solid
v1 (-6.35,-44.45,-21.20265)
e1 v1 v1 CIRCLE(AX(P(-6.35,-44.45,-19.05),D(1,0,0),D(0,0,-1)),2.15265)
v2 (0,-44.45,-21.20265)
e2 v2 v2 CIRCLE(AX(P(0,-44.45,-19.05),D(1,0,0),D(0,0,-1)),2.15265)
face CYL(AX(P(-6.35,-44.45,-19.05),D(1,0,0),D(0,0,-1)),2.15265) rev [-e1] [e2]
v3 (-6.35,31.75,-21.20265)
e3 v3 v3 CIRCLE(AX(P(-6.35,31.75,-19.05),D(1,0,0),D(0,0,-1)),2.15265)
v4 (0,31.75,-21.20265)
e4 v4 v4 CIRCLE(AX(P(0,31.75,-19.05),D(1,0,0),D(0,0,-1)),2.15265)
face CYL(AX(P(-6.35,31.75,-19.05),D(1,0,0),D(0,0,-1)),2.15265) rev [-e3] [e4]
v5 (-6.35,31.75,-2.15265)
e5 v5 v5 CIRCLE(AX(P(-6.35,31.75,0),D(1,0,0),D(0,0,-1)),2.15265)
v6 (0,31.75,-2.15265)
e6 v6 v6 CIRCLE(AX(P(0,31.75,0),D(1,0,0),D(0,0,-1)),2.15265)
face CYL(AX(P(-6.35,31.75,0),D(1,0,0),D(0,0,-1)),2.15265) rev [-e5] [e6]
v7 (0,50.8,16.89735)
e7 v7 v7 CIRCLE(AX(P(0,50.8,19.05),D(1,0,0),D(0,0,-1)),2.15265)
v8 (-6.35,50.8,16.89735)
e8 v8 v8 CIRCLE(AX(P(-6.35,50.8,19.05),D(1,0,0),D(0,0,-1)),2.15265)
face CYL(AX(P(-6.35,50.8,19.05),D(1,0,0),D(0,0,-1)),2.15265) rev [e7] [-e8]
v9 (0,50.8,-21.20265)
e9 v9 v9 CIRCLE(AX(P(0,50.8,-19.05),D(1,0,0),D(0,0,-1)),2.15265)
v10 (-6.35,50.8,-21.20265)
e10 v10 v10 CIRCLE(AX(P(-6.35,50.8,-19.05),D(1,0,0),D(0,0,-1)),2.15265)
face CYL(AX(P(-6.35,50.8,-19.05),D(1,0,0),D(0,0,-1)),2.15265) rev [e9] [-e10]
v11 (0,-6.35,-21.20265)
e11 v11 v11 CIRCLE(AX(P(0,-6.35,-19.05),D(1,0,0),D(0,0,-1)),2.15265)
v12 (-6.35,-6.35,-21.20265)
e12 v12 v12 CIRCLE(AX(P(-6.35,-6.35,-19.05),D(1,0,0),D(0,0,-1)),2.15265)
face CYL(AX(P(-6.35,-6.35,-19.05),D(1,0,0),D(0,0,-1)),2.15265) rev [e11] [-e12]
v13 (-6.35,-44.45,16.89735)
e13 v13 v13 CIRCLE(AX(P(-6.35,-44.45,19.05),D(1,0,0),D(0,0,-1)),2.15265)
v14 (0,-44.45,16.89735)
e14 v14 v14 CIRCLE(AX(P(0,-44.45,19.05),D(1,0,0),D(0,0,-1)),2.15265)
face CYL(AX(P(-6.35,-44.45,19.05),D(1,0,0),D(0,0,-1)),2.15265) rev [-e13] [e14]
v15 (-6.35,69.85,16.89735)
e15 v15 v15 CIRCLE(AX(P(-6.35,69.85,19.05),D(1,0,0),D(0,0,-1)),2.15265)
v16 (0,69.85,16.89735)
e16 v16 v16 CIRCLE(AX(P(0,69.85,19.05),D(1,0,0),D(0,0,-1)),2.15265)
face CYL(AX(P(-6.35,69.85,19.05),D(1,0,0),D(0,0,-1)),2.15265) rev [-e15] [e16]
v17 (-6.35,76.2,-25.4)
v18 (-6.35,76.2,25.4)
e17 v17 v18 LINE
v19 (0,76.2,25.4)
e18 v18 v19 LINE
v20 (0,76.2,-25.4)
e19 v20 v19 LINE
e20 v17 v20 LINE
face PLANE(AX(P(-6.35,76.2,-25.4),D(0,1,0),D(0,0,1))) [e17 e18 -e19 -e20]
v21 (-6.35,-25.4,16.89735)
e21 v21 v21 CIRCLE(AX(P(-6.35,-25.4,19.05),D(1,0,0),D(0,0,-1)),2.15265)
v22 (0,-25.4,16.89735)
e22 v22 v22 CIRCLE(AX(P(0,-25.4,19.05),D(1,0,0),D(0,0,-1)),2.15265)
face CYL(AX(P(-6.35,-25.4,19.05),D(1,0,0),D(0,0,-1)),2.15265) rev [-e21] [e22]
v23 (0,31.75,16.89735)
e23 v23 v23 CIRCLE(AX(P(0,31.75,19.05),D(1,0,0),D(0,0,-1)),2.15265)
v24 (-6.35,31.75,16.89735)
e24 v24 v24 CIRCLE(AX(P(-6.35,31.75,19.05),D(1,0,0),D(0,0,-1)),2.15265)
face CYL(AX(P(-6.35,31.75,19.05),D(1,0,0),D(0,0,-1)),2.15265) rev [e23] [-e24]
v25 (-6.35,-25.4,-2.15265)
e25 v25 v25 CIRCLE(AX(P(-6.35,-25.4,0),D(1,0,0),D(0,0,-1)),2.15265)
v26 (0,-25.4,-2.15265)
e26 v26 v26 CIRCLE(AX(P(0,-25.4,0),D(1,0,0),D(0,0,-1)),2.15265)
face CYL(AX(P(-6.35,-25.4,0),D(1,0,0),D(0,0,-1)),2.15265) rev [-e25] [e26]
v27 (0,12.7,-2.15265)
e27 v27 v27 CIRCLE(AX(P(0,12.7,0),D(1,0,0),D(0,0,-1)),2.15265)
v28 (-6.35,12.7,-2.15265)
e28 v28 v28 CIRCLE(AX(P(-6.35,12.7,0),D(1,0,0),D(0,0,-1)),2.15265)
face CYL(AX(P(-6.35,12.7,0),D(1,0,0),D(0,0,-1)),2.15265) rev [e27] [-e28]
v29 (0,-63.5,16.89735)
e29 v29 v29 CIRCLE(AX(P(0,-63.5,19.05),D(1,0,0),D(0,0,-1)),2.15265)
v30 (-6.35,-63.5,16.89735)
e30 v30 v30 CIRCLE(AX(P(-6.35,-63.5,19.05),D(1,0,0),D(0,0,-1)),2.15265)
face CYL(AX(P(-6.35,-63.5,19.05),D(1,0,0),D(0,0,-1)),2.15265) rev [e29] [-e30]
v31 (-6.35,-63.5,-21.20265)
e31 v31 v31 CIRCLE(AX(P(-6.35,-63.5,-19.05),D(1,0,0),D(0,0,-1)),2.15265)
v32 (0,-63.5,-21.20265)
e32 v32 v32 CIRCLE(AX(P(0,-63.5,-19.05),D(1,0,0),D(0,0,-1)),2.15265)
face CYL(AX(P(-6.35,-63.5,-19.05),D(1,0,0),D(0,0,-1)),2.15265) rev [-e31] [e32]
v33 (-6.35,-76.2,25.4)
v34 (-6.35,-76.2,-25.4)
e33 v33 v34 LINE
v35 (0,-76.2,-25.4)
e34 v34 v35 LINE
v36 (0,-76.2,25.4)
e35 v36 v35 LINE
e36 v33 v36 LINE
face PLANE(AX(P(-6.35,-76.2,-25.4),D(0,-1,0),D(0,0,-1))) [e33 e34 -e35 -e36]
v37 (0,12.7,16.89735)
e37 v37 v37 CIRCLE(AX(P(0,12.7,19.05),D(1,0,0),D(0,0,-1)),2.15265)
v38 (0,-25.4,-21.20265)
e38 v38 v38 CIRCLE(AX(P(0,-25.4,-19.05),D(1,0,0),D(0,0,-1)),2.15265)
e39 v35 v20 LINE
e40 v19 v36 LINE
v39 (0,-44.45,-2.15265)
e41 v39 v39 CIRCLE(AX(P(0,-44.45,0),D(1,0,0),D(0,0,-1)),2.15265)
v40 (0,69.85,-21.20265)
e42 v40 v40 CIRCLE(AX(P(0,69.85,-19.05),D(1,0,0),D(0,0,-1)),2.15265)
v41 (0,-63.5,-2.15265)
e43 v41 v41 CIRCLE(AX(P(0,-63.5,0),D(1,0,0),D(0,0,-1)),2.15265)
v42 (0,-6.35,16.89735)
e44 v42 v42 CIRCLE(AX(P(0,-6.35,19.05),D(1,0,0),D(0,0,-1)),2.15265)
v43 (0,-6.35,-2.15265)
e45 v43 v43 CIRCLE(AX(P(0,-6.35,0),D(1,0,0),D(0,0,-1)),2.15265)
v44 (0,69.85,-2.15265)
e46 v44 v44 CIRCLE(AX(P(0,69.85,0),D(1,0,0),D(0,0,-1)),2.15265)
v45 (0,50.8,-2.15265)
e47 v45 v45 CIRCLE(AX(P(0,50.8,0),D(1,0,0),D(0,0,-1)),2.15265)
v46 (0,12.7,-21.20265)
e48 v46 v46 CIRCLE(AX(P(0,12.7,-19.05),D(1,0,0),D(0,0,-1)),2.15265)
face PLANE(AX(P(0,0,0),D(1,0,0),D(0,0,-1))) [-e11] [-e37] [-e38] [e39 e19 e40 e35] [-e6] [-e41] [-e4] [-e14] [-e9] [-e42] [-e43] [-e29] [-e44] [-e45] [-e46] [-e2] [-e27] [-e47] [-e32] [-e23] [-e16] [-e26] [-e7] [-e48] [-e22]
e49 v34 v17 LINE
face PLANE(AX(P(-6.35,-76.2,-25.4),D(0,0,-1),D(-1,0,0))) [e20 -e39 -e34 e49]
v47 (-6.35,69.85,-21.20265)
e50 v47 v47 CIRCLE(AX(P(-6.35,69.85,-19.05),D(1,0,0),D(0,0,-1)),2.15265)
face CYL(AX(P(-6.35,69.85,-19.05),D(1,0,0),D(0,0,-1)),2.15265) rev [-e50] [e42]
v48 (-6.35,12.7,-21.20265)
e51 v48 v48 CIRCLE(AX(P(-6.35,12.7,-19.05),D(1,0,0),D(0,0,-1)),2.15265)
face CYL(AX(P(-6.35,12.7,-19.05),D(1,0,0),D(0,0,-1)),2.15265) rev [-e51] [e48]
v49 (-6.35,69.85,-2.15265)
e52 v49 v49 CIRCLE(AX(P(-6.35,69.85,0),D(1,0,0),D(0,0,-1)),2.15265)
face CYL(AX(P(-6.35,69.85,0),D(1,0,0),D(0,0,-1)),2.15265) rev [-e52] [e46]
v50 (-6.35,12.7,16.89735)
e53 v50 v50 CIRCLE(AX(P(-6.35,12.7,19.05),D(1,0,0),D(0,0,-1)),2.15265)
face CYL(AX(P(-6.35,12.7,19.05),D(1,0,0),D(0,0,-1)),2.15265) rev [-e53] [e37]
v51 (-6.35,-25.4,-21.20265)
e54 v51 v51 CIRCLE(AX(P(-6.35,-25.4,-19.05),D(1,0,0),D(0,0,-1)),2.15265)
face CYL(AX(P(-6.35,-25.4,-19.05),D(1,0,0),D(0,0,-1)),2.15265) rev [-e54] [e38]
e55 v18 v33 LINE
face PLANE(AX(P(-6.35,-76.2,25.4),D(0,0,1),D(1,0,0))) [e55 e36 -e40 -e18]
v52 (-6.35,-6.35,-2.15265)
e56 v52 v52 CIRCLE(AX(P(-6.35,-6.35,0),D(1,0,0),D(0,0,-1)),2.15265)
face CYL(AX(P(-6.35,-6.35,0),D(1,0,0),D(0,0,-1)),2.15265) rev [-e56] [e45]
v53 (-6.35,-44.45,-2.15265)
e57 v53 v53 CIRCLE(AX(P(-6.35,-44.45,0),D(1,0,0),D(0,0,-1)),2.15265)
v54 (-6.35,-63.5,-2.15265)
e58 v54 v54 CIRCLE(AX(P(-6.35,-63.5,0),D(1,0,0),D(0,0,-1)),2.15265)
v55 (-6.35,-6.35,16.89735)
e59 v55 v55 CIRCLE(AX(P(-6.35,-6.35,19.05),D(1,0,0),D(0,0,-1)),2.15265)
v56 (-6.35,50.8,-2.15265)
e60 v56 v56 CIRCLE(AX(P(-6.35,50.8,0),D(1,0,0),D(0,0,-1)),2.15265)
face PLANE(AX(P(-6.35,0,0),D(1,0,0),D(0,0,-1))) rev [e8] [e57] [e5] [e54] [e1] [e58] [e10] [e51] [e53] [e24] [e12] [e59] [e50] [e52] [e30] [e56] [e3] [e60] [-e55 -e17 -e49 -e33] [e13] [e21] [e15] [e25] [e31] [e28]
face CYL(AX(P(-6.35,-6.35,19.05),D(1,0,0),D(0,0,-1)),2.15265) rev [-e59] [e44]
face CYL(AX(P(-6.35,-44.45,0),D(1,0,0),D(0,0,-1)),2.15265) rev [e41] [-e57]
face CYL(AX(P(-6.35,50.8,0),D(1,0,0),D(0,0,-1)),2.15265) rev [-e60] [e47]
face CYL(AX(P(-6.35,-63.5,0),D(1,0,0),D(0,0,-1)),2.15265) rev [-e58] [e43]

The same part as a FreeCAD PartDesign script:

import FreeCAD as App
import Part
import Sketcher
from FreeCAD import Vector
Q = App.Units.Quantity


def add_polygon(sketch, points):
    """Adds a closed chain of lines whose ends are joined by coincident constraints."""
    first, n = sketch.GeometryCount, len(points)
    for a, b in zip(points, points[1:] + points[:1]):
        sketch.addGeometry(Part.LineSegment(App.Vector(*a, 0), App.Vector(*b, 0)), False)
    for i in range(n):
        sketch.addConstraint(Sketcher.Constraint("Coincident", first + i, 2, first + (i + 1) % n, 1))

doc = App.newDocument("Part")
body = doc.addObject("PartDesign::Body", "Body")

sketch1 = body.newObject("Sketcher::SketchObject", "Sketch")
sketch1.AttachmentSupport = (doc.getObject("YZ_Plane"), [""])
sketch1.MapMode = "FlatFace"
add_polygon(sketch1, [(76, 25), (-76, 25), (-76, -25), (76, -25)])
sketch1.addConstraint([
    Sketcher.Constraint("Horizontal", 0),
    Sketcher.Constraint("Vertical", 1),
    Sketcher.Constraint("Horizontal", 2),
    Sketcher.Constraint("Vertical", 3),
    Sketcher.Constraint("Symmetric", 0, 2, 2, 2, -1, 1),
    Sketcher.Constraint("DistanceX", 0, 2, 0, 1, Q("6 in")),
    Sketcher.Constraint("DistanceY", 1, 2, 1, 1, Q("2 in")),
])
pad1 = body.newObject("PartDesign::Pad", "Pad")
pad1.Profile = sketch1
pad1.Length = Q("0.25 in")
pad1.Reversed = True

sketch2 = body.newObject("Sketcher::SketchObject", "Sketch001")
sketch2.AttachmentSupport = (doc.getObject("YZ_Plane"), [""])
sketch2.MapMode = "FlatFace"
sketch2.addGeometry([
    Part.Circle(Vector(69.8, 19.1, 0), Vector(0, 0, 1), 2.2),
    Part.Circle(Vector(69.8, 0, 0), Vector(0, 0, 1), 2.2),
    Part.Circle(Vector(69.8, -19.1, 0), Vector(0, 0, 1), 2.2),
    Part.Circle(Vector(50.8, 0, 0), Vector(0, 0, 1), 2.2),
    Part.Circle(Vector(50.8, -19.1, 0), Vector(0, 0, 1), 2.2),
    Part.Circle(Vector(31.8, 0, 0), Vector(0, 0, 1), 2.2),
    Part.Circle(Vector(31.8, -19.1, 0), Vector(0, 0, 1), 2.2),
    Part.Circle(Vector(12.7, 0, 0), Vector(0, 0, 1), 2.2),
    Part.Circle(Vector(12.7, -19.1, 0), Vector(0, 0, 1), 2.2),
    Part.Circle(Vector(-6.3, 0, 0), Vector(0, 0, 1), 2.2),
    Part.Circle(Vector(-6.3, -19.1, 0), Vector(0, 0, 1), 2.2),
    Part.Circle(Vector(-25.4, 0, 0), Vector(0, 0, 1), 2.2),
    Part.Circle(Vector(-25.4, -19.1, 0), Vector(0, 0, 1), 2.2),
    Part.Circle(Vector(-44.5, 0, 0), Vector(0, 0, 1), 2.2),
    Part.Circle(Vector(-44.5, -19.1, 0), Vector(0, 0, 1), 2.2),
    Part.Circle(Vector(-63.5, 0, 0), Vector(0, 0, 1), 2.2),
    Part.Circle(Vector(-63.5, -19.1, 0), Vector(0, 0, 1), 2.2),
    Part.Circle(Vector(50.8, 19.1, 0), Vector(0, 0, 1), 2.2),
    Part.Circle(Vector(31.8, 19.1, 0), Vector(0, 0, 1), 2.2),
    Part.Circle(Vector(12.7, 19.1, 0), Vector(0, 0, 1), 2.2),
    Part.Circle(Vector(-6.3, 19.1, 0), Vector(0, 0, 1), 2.2),
    Part.Circle(Vector(-25.4, 19.1, 0), Vector(0, 0, 1), 2.2),
    Part.Circle(Vector(-44.5, 19.1, 0), Vector(0, 0, 1), 2.2),
    Part.Circle(Vector(-63.5, 19.1, 0), Vector(0, 0, 1), 2.2),
], False)
sketch2.addConstraint([
    Sketcher.Constraint("Equal", 0, 1),
    Sketcher.Constraint("Equal", 1, 2),
    Sketcher.Constraint("Equal", 2, 3),
    Sketcher.Constraint("Equal", 3, 4),
    Sketcher.Constraint("Equal", 4, 5),
    Sketcher.Constraint("Equal", 5, 6),
    Sketcher.Constraint("Equal", 6, 7),
    Sketcher.Constraint("Equal", 7, 8),
    Sketcher.Constraint("Equal", 8, 9),
    Sketcher.Constraint("Equal", 9, 10),
    Sketcher.Constraint("Equal", 10, 11),
    Sketcher.Constraint("Equal", 11, 12),
    Sketcher.Constraint("Equal", 12, 13),
    Sketcher.Constraint("Equal", 13, 14),
    Sketcher.Constraint("Equal", 14, 15),
    Sketcher.Constraint("Equal", 15, 16),
    Sketcher.Constraint("Equal", 16, 17),
    Sketcher.Constraint("Equal", 17, 18),
    Sketcher.Constraint("Equal", 18, 19),
    Sketcher.Constraint("Equal", 19, 20),
    Sketcher.Constraint("Equal", 20, 21),
    Sketcher.Constraint("Equal", 21, 22),
    Sketcher.Constraint("Equal", 22, 23),
    Sketcher.Constraint("Symmetric", 0, 3, 2, 3, -1),
    Sketcher.Constraint("Symmetric", 4, 3, 17, 3, -1),
    Sketcher.Constraint("Symmetric", 6, 3, 18, 3, -1),
    Sketcher.Constraint("Symmetric", 8, 3, 19, 3, -1),
    Sketcher.Constraint("Symmetric", 10, 3, 20, 3, -1),
    Sketcher.Constraint("Symmetric", 12, 3, 21, 3, -1),
    Sketcher.Constraint("Symmetric", 14, 3, 22, 3, -1),
    Sketcher.Constraint("Symmetric", 16, 3, 23, 3, -1),
    Sketcher.Constraint("PointOnObject", 1, 3, -1),
    Sketcher.Constraint("PointOnObject", 3, 3, -1),
    Sketcher.Constraint("PointOnObject", 5, 3, -1),
    Sketcher.Constraint("PointOnObject", 7, 3, -1),
    Sketcher.Constraint("PointOnObject", 9, 3, -1),
    Sketcher.Constraint("PointOnObject", 11, 3, -1),
    Sketcher.Constraint("PointOnObject", 13, 3, -1),
    Sketcher.Constraint("PointOnObject", 15, 3, -1),
    Sketcher.Constraint("Horizontal", 2, 3, 4, 3),
    Sketcher.Constraint("Horizontal", 4, 3, 6, 3),
    Sketcher.Constraint("Horizontal", 6, 3, 8, 3),
    Sketcher.Constraint("Horizontal", 8, 3, 10, 3),
    Sketcher.Constraint("Horizontal", 10, 3, 12, 3),
    Sketcher.Constraint("Horizontal", 12, 3, 14, 3),
    Sketcher.Constraint("Horizontal", 14, 3, 16, 3),
    Sketcher.Constraint("Vertical", 0, 3, 1, 3),
    Sketcher.Constraint("Vertical", 3, 3, 4, 3),
    Sketcher.Constraint("Vertical", 5, 3, 6, 3),
    Sketcher.Constraint("Vertical", 7, 3, 8, 3),
    Sketcher.Constraint("Vertical", 9, 3, 10, 3),
    Sketcher.Constraint("Vertical", 11, 3, 12, 3),
    Sketcher.Constraint("Vertical", 13, 3, 14, 3),
    Sketcher.Constraint("Vertical", 15, 3, 16, 3),
    Sketcher.Constraint("DistanceX", -1, 1, 3, 3, Q("2 in")),
    Sketcher.Constraint("DistanceX", 11, 3, -1, 1, Q("1 in")),
    Sketcher.Constraint("Diameter", 0, Q("0.1695 in")),
    Sketcher.Constraint("DistanceX", -1, 1, 7, 3, Q("0.5 in")),
    Sketcher.Constraint("DistanceX", 15, 3, -1, 1, Q("2.5 in")),
    Sketcher.Constraint("DistanceY", 2, 3, 0, 3, Q("1.5 in")),
    Sketcher.Constraint("DistanceX", 5, 3, 1, 3, Q("1.5 in")),
    Sketcher.Constraint("DistanceX", 9, 3, 5, 3, Q("1.5 in")),
    Sketcher.Constraint("DistanceX", 13, 3, 9, 3, Q("1.5 in")),
    Sketcher.Constraint("DistanceX", -1, 1, 0, 3, Q("2.75 in")),
])
pocket1 = body.newObject("PartDesign::Pocket", "Pocket")
pocket1.Profile = sketch2
pocket1.Type = "ThroughAll"

doc.recompute()
